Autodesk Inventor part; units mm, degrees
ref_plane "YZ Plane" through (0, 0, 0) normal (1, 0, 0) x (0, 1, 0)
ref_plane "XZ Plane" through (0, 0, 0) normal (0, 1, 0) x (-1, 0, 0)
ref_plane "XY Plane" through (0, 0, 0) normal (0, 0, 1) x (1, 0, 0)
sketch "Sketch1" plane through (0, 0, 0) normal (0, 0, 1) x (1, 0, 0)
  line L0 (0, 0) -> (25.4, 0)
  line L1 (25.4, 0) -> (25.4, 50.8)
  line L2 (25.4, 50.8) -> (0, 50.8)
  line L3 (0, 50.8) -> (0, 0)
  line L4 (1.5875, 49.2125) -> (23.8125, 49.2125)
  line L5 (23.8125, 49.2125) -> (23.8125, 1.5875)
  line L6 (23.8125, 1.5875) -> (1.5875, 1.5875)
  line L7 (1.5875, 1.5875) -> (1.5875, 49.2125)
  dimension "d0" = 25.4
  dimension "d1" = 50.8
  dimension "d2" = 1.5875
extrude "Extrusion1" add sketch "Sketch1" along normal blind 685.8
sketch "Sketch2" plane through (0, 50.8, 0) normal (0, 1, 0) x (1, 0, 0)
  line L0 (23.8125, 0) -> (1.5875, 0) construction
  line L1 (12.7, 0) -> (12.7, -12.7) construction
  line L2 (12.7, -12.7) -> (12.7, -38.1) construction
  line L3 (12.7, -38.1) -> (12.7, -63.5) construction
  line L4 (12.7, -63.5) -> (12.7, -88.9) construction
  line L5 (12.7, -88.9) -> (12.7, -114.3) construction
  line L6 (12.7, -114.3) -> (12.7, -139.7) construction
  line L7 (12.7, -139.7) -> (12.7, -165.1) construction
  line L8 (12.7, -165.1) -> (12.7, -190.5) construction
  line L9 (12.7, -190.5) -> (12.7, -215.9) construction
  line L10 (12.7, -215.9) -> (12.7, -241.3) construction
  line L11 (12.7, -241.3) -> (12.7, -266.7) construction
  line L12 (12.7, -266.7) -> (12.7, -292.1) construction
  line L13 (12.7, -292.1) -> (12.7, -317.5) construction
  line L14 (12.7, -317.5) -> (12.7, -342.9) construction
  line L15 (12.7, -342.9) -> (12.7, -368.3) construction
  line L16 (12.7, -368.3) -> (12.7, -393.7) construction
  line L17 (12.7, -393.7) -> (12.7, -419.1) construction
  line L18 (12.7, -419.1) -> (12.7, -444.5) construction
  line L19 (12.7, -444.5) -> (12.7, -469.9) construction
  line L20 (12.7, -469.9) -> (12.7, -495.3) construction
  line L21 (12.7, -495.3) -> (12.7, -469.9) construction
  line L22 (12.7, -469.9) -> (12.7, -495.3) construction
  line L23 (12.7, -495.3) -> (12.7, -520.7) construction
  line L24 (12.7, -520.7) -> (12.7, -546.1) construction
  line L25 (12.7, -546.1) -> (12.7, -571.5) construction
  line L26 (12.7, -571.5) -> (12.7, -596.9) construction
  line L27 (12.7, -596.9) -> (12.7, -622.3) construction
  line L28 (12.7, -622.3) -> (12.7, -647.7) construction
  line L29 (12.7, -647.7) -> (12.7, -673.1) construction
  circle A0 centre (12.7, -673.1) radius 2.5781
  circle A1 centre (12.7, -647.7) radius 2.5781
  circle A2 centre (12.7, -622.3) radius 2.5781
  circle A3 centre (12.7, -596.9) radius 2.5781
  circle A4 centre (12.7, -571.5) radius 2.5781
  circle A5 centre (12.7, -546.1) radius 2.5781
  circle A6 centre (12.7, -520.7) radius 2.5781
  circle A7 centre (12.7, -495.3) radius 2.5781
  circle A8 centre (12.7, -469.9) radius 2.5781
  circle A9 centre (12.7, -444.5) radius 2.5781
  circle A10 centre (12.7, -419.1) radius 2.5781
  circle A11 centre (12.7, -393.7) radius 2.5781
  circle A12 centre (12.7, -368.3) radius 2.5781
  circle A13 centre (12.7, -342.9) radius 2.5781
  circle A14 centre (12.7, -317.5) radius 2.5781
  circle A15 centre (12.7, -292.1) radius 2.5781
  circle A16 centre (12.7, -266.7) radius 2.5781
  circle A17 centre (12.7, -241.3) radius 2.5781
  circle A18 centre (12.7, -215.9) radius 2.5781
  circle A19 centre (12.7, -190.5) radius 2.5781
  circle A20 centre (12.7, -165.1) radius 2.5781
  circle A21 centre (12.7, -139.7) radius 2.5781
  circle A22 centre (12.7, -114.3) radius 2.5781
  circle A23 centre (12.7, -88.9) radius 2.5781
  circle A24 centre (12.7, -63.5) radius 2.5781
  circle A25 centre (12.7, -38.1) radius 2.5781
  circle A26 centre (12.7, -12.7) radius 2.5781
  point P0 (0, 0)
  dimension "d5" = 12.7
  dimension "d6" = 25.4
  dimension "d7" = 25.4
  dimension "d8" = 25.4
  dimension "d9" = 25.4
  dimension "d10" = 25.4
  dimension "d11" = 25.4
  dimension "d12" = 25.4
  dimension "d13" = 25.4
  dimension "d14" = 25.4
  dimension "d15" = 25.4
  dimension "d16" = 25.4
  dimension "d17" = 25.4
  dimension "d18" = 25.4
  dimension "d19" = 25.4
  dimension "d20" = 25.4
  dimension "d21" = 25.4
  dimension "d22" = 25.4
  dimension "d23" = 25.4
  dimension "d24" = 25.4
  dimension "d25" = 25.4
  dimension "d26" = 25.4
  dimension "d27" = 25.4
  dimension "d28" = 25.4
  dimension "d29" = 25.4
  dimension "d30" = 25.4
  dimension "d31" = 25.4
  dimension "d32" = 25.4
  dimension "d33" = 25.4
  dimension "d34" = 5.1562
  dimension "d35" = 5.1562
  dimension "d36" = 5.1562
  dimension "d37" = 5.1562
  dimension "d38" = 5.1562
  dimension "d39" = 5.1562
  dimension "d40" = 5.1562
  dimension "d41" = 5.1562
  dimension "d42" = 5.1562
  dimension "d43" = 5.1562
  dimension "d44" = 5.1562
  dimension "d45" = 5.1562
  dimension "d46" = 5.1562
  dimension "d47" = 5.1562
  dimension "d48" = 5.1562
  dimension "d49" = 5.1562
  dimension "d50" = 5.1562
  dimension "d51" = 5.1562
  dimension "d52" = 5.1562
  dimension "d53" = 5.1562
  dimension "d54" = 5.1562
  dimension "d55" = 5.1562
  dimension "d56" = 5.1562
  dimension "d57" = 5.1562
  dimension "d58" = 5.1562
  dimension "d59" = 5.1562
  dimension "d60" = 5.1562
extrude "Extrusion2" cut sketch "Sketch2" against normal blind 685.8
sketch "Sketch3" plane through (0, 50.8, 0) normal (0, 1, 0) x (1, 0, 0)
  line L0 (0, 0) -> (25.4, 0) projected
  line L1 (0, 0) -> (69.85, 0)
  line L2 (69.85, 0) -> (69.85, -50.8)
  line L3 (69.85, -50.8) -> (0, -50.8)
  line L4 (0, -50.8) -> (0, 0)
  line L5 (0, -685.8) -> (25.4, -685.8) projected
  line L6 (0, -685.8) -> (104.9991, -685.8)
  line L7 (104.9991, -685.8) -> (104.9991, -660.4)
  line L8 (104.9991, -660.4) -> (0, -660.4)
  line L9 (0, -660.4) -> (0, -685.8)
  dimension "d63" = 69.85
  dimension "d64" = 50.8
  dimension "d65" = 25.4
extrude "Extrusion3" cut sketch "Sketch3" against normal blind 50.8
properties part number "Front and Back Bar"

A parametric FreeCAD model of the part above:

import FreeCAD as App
import Part
import Sketcher

V = App.Vector
Q = App.Units.Quantity


def add_polygon(sketch, points):
    """Adds a closed chain of lines whose ends are joined by coincident constraints."""
    first, n = sketch.GeometryCount, len(points)
    for a, b in zip(points, points[1:] + points[:1]):
        sketch.addGeometry(Part.LineSegment(App.Vector(*a, 0), App.Vector(*b, 0)), False)
    for i in range(n):
        sketch.addConstraint(Sketcher.Constraint("Coincident", first + i, 2, first + (i + 1) % n, 1))

doc = App.newDocument("Part")
params = doc.addObject("Spreadsheet::Sheet", "Params")
for row, (alias, value) in enumerate([
    ("sketch1_width", "1 in"),
    ("sketch1_height", "2 in"),
    ("pad1_length", "27 in"),
    ("sketch2_diameter", "0.203 in"),
    ("pocket1_length", "27 in"),
    ("sketch3_height", "2 in"),
    ("sketch3_height2", "1 in"),
    ("sketch3_width", "2.75 in"),
    ("pocket2_length", "2 in"),
], start=1):
    params.set(f"A{row}", alias)
    params.set(f"B{row}", "=" + value)
    params.setAlias(f"B{row}", alias)

body = doc.addObject("PartDesign::Body", "Body")

sketch1 = body.newObject("Sketcher::SketchObject", "Sketch")
sketch1.AttachmentSupport = (doc.getObject("XY_Plane"), [""])
sketch1.MapMode = "FlatFace"
add_polygon(sketch1, [(0, 50.8), (0, 0), (25.4, 0), (25.4, 50.8)])
add_polygon(sketch1, [(1.5875, 1.5875), (1.5875, 49.2125), (23.8125, 49.2125), (23.8125, 1.5875)])
sketch1.addConstraint([
    Sketcher.Constraint("Vertical", 0),
    Sketcher.Constraint("Horizontal", 1),
    Sketcher.Constraint("Vertical", 2),
    Sketcher.Constraint("Horizontal", 3),
    Sketcher.Constraint("Vertical", 4),
    Sketcher.Constraint("Horizontal", 5),
    Sketcher.Constraint("Vertical", 6),
    Sketcher.Constraint("Horizontal", 7),
    Sketcher.Constraint("Coincident", 0, 2, -1, 1),
    Sketcher.Constraint("DistanceX", 1, 1, 1, 2, Q("1 in")),
    Sketcher.Constraint("DistanceY", 0, 2, 0, 1, Q("2 in")),
    Sketcher.Constraint("DistanceX", -1, 1, 4, 2, Q("0.0625 in")),
    Sketcher.Constraint("DistanceY", -1, 1, 6, 2, Q("0.0625 in")),
    Sketcher.Constraint("DistanceY", 4, 2, 3, 2, Q("0.0625 in")),
    Sketcher.Constraint("DistanceX", 5, 2, 2, 2, Q("0.0625 in")),
])
sketch1.setExpression("Constraints[17]", "Params.sketch1_width")
sketch1.setExpression("Constraints[18]", "Params.sketch1_height")
pad1 = body.newObject("PartDesign::Pad", "Pad")
pad1.Profile = sketch1
pad1.setExpression("Length", "Params.pad1_length")

sketch2 = body.newObject("Sketcher::SketchObject", "Sketch001")
sketch2.AttachmentSupport = (doc.getObject("XZ_Plane"), [""])
sketch2.MapMode = "FlatFace"
sketch2.AttachmentOffset = App.Placement(V(0, 0, -2 * 25.4), App.Rotation())
sketch2.addGeometry([
    Part.Circle(V(12.7, 673.1, 0), V(0, 0, 1), 2.5781),
    Part.Circle(V(12.7, 647.7, 0), V(0, 0, 1), 2.5781),
    Part.Circle(V(12.7, 622.3, 0), V(0, 0, 1), 2.5781),
    Part.Circle(V(12.7, 596.9, 0), V(0, 0, 1), 2.5781),
    Part.Circle(V(12.7, 571.5, 0), V(0, 0, 1), 2.5781),
    Part.Circle(V(12.7, 546.1, 0), V(0, 0, 1), 2.5781),
    Part.Circle(V(12.7, 520.7, 0), V(0, 0, 1), 2.5781),
    Part.Circle(V(12.7, 495.3, 0), V(0, 0, 1), 2.5781),
    Part.Circle(V(12.7, 469.9, 0), V(0, 0, 1), 2.5781),
    Part.Circle(V(12.7, 444.5, 0), V(0, 0, 1), 2.5781),
    Part.Circle(V(12.7, 419.1, 0), V(0, 0, 1), 2.5781),
    Part.Circle(V(12.7, 393.7, 0), V(0, 0, 1), 2.5781),
    Part.Circle(V(12.7, 368.3, 0), V(0, 0, 1), 2.5781),
    Part.Circle(V(12.7, 342.9, 0), V(0, 0, 1), 2.5781),
    Part.Circle(V(12.7, 317.5, 0), V(0, 0, 1), 2.5781),
    Part.Circle(V(12.7, 292.1, 0), V(0, 0, 1), 2.5781),
    Part.Circle(V(12.7, 266.7, 0), V(0, 0, 1), 2.5781),
    Part.Circle(V(12.7, 241.3, 0), V(0, 0, 1), 2.5781),
    Part.Circle(V(12.7, 215.9, 0), V(0, 0, 1), 2.5781),
    Part.Circle(V(12.7, 190.5, 0), V(0, 0, 1), 2.5781),
    Part.Circle(V(12.7, 165.1, 0), V(0, 0, 1), 2.5781),
    Part.Circle(V(12.7, 139.7, 0), V(0, 0, 1), 2.5781),
    Part.Circle(V(12.7, 114.3, 0), V(0, 0, 1), 2.5781),
    Part.Circle(V(12.7, 88.9, 0), V(0, 0, 1), 2.5781),
    Part.Circle(V(12.7, 63.5, 0), V(0, 0, 1), 2.5781),
    Part.Circle(V(12.7, 38.1, 0), V(0, 0, 1), 2.5781),
    Part.Circle(V(12.7, 12.7, 0), V(0, 0, 1), 2.5781),
], False)
sketch2.addConstraint([
    Sketcher.Constraint("Equal", 0, 1),
    Sketcher.Constraint("Equal", 1, 2),
    Sketcher.Constraint("Equal", 2, 3),
    Sketcher.Constraint("Equal", 3, 4),
    Sketcher.Constraint("Equal", 4, 5),
    Sketcher.Constraint("Equal", 5, 6),
    Sketcher.Constraint("Equal", 6, 7),
    Sketcher.Constraint("Equal", 7, 8),
    Sketcher.Constraint("Equal", 8, 9),
    Sketcher.Constraint("Equal", 9, 10),
    Sketcher.Constraint("Equal", 10, 11),
    Sketcher.Constraint("Equal", 11, 12),
    Sketcher.Constraint("Equal", 12, 13),
    Sketcher.Constraint("Equal", 13, 14),
    Sketcher.Constraint("Equal", 14, 15),
    Sketcher.Constraint("Equal", 15, 16),
    Sketcher.Constraint("Equal", 16, 17),
    Sketcher.Constraint("Equal", 17, 18),
    Sketcher.Constraint("Equal", 18, 19),
    Sketcher.Constraint("Equal", 19, 20),
    Sketcher.Constraint("Equal", 20, 21),
    Sketcher.Constraint("Equal", 21, 22),
    Sketcher.Constraint("Equal", 22, 23),
    Sketcher.Constraint("Equal", 23, 24),
    Sketcher.Constraint("Equal", 24, 25),
    Sketcher.Constraint("Equal", 25, 26),
    Sketcher.Constraint("Vertical", 0, 3, 1, 3),
    Sketcher.Constraint("Vertical", 1, 3, 2, 3),
    Sketcher.Constraint("Vertical", 2, 3, 3, 3),
    Sketcher.Constraint("Vertical", 3, 3, 4, 3),
    Sketcher.Constraint("Vertical", 4, 3, 5, 3),
    Sketcher.Constraint("Vertical", 5, 3, 6, 3),
    Sketcher.Constraint("Vertical", 6, 3, 7, 3),
    Sketcher.Constraint("Vertical", 7, 3, 8, 3),
    Sketcher.Constraint("Vertical", 8, 3, 9, 3),
    Sketcher.Constraint("Vertical", 9, 3, 10, 3),
    Sketcher.Constraint("Vertical", 10, 3, 11, 3),
    Sketcher.Constraint("Vertical", 11, 3, 12, 3),
    Sketcher.Constraint("Vertical", 12, 3, 13, 3),
    Sketcher.Constraint("Vertical", 13, 3, 14, 3),
    Sketcher.Constraint("Vertical", 14, 3, 15, 3),
    Sketcher.Constraint("Vertical", 15, 3, 16, 3),
    Sketcher.Constraint("Vertical", 16, 3, 17, 3),
    Sketcher.Constraint("Vertical", 17, 3, 18, 3),
    Sketcher.Constraint("Vertical", 18, 3, 19, 3),
    Sketcher.Constraint("Vertical", 19, 3, 20, 3),
    Sketcher.Constraint("Vertical", 20, 3, 21, 3),
    Sketcher.Constraint("Vertical", 21, 3, 22, 3),
    Sketcher.Constraint("Vertical", 22, 3, 23, 3),
    Sketcher.Constraint("Vertical", 23, 3, 24, 3),
    Sketcher.Constraint("Vertical", 24, 3, 25, 3),
    Sketcher.Constraint("Vertical", 25, 3, 26, 3),
    Sketcher.Constraint("Diameter", 0, Q("0.203 in")),
    Sketcher.Constraint("DistanceY", 1, 3, 0, 3, Q("1 in")),
    Sketcher.Constraint("DistanceY", 2, 3, 1, 3, Q("1 in")),
    Sketcher.Constraint("DistanceY", 3, 3, 2, 3, Q("1 in")),
    Sketcher.Constraint("DistanceY", 4, 3, 3, 3, Q("1 in")),
    Sketcher.Constraint("DistanceY", 5, 3, 4, 3, Q("1 in")),
    Sketcher.Constraint("DistanceY", 6, 3, 5, 3, Q("1 in")),
    Sketcher.Constraint("DistanceY", 7, 3, 6, 3, Q("1 in")),
    Sketcher.Constraint("DistanceY", 8, 3, 7, 3, Q("1 in")),
    Sketcher.Constraint("DistanceY", 9, 3, 8, 3, Q("1 in")),
    Sketcher.Constraint("DistanceY", 10, 3, 9, 3, Q("1 in")),
    Sketcher.Constraint("DistanceY", 11, 3, 10, 3, Q("1 in")),
    Sketcher.Constraint("DistanceY", 12, 3, 11, 3, Q("1 in")),
    Sketcher.Constraint("DistanceY", 13, 3, 12, 3, Q("1 in")),
    Sketcher.Constraint("DistanceY", 14, 3, 13, 3, Q("1 in")),
    Sketcher.Constraint("DistanceY", 15, 3, 14, 3, Q("1 in")),
    Sketcher.Constraint("DistanceY", 16, 3, 15, 3, Q("1 in")),
    Sketcher.Constraint("DistanceY", 17, 3, 16, 3, Q("1 in")),
    Sketcher.Constraint("DistanceY", 18, 3, 17, 3, Q("1 in")),
    Sketcher.Constraint("DistanceY", 19, 3, 18, 3, Q("1 in")),
    Sketcher.Constraint("DistanceY", 20, 3, 19, 3, Q("1 in")),
    Sketcher.Constraint("DistanceY", 21, 3, 20, 3, Q("1 in")),
    Sketcher.Constraint("DistanceY", 22, 3, 21, 3, Q("1 in")),
    Sketcher.Constraint("DistanceY", 23, 3, 22, 3, Q("1 in")),
    Sketcher.Constraint("DistanceY", 24, 3, 23, 3, Q("1 in")),
    Sketcher.Constraint("DistanceY", 25, 3, 24, 3, Q("1 in")),
    Sketcher.Constraint("DistanceY", 26, 3, 25, 3, Q("1 in")),
    Sketcher.Constraint("DistanceX", -1, 1, 0, 3, Q("0.5 in")),
    Sketcher.Constraint("DistanceY", -1, 1, 26, 3, Q("0.5 in")),
])
sketch2.setExpression("Constraints[52]", "Params.sketch2_diameter")
pocket1 = body.newObject("PartDesign::Pocket", "Pocket")
pocket1.Profile = sketch2
pocket1.setExpression("Length", "Params.pocket1_length")
pocket1.Reversed = True

sketch3 = body.newObject("Sketcher::SketchObject", "Sketch002")
sketch3.AttachmentSupport = (doc.getObject("XZ_Plane"), [""])
sketch3.MapMode = "FlatFace"
sketch3.AttachmentOffset = App.Placement(V(0, 0, -2 * 25.4), App.Rotation())
add_polygon(sketch3, [(69.85, 0), (0, 0), (0, 50.8), (69.85, 50.8)])
add_polygon(sketch3, [(0, 660.4), (0, 685.8), (104.9991, 685.8), (104.9991, 660.4)])
sketch3.addConstraint([
    Sketcher.Constraint("Horizontal", 0),
    Sketcher.Constraint("Vertical", 1),
    Sketcher.Constraint("Horizontal", 2),
    Sketcher.Constraint("Vertical", 3),
    Sketcher.Constraint("Vertical", 4),
    Sketcher.Constraint("Horizontal", 5),
    Sketcher.Constraint("Vertical", 6),
    Sketcher.Constraint("Horizontal", 7),
    Sketcher.Constraint("Coincident", 0, 2, -1, 1),
    Sketcher.Constraint("PointOnObject", 4, 2, -2),
    Sketcher.Constraint("DistanceY", 1, 1, 1, 2, Q("2 in")),
    Sketcher.Constraint("DistanceY", 4, 1, 4, 2, Q("1 in")),
    Sketcher.Constraint("DistanceX", 0, 2, 0, 1, Q("2.75 in")),
    Sketcher.Constraint("DistanceY", -1, 1, 4, 2, Q("27 in")),
    Sketcher.Constraint("DistanceX", 5, 1, 5, 2, 104.999),
])
sketch3.setExpression("Constraints[18]", "Params.sketch3_height")
sketch3.setExpression("Constraints[19]", "Params.sketch3_height2")
sketch3.setExpression("Constraints[20]", "Params.sketch3_width")
pocket2 = body.newObject("PartDesign::Pocket", "Pocket001")
pocket2.Profile = sketch3
pocket2.setExpression("Length", "Params.pocket2_length")
pocket2.Reversed = True

doc.recompute()
